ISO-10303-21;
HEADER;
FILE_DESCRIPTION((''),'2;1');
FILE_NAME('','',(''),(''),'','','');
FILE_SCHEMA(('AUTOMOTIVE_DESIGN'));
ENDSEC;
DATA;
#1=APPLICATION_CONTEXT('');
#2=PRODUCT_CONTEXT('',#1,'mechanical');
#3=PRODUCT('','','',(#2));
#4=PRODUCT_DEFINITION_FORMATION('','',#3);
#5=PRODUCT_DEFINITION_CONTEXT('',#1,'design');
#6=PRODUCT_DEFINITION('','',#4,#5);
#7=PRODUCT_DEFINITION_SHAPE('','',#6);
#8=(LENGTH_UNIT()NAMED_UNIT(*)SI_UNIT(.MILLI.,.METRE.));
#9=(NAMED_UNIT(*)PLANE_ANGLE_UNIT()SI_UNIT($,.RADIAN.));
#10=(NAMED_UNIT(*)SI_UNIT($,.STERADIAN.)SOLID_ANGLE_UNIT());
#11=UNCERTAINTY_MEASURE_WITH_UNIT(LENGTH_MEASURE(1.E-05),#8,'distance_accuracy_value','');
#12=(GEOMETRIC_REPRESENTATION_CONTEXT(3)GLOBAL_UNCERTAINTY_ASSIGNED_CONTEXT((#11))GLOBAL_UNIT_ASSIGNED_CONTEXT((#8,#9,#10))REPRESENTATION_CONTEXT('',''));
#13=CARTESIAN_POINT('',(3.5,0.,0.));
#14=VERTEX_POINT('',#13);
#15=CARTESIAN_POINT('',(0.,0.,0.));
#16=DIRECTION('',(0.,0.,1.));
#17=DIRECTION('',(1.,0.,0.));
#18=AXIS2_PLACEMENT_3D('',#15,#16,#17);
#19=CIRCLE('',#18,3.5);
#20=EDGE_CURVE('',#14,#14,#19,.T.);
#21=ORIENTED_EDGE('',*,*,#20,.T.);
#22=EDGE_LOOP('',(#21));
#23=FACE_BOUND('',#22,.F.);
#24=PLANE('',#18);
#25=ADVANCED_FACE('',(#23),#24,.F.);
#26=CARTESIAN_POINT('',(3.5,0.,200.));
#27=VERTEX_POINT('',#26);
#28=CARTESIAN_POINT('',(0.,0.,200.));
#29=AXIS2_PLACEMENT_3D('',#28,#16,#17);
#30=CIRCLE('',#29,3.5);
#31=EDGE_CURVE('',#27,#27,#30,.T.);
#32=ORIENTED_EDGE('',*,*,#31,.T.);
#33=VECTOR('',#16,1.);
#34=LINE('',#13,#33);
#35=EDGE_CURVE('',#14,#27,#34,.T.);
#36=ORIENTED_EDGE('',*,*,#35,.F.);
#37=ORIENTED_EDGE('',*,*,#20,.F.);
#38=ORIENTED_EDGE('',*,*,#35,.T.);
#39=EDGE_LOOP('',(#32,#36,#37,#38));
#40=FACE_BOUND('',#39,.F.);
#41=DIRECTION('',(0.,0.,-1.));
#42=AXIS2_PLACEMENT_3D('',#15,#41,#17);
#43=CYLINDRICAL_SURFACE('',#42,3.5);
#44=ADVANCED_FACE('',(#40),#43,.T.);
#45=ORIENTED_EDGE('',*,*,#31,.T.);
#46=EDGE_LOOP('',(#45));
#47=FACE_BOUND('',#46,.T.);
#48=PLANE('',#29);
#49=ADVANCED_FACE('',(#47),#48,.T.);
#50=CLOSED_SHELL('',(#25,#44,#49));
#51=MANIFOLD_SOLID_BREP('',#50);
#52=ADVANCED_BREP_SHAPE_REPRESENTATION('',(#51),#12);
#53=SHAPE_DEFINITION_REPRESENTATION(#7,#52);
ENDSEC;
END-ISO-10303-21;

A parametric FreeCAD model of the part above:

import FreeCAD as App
import Part
import Sketcher

doc = App.newDocument("Part")
body = doc.addObject("PartDesign::Body", "Body")

# Sketch on XY plane
sketch1 = body.newObject("Sketcher::SketchObject", "Sketch")
sketch1.AttachmentSupport = (doc.getObject("XY_Plane"), [""])
sketch1.MapMode = "FlatFace"
sketch1.addGeometry(Part.Circle(App.Vector(0, 0, 0), App.Vector(0, 0, 1), 3.5), False)
sketch1.addConstraint([
    Sketcher.Constraint("Coincident", 0, 3, -1, 1),
    Sketcher.Constraint("Diameter", 0, 7.0),
])
pad1 = body.newObject("PartDesign::Pad", "Pad")
pad1.Profile = sketch1
pad1.Length = 200

doc.recompute()
